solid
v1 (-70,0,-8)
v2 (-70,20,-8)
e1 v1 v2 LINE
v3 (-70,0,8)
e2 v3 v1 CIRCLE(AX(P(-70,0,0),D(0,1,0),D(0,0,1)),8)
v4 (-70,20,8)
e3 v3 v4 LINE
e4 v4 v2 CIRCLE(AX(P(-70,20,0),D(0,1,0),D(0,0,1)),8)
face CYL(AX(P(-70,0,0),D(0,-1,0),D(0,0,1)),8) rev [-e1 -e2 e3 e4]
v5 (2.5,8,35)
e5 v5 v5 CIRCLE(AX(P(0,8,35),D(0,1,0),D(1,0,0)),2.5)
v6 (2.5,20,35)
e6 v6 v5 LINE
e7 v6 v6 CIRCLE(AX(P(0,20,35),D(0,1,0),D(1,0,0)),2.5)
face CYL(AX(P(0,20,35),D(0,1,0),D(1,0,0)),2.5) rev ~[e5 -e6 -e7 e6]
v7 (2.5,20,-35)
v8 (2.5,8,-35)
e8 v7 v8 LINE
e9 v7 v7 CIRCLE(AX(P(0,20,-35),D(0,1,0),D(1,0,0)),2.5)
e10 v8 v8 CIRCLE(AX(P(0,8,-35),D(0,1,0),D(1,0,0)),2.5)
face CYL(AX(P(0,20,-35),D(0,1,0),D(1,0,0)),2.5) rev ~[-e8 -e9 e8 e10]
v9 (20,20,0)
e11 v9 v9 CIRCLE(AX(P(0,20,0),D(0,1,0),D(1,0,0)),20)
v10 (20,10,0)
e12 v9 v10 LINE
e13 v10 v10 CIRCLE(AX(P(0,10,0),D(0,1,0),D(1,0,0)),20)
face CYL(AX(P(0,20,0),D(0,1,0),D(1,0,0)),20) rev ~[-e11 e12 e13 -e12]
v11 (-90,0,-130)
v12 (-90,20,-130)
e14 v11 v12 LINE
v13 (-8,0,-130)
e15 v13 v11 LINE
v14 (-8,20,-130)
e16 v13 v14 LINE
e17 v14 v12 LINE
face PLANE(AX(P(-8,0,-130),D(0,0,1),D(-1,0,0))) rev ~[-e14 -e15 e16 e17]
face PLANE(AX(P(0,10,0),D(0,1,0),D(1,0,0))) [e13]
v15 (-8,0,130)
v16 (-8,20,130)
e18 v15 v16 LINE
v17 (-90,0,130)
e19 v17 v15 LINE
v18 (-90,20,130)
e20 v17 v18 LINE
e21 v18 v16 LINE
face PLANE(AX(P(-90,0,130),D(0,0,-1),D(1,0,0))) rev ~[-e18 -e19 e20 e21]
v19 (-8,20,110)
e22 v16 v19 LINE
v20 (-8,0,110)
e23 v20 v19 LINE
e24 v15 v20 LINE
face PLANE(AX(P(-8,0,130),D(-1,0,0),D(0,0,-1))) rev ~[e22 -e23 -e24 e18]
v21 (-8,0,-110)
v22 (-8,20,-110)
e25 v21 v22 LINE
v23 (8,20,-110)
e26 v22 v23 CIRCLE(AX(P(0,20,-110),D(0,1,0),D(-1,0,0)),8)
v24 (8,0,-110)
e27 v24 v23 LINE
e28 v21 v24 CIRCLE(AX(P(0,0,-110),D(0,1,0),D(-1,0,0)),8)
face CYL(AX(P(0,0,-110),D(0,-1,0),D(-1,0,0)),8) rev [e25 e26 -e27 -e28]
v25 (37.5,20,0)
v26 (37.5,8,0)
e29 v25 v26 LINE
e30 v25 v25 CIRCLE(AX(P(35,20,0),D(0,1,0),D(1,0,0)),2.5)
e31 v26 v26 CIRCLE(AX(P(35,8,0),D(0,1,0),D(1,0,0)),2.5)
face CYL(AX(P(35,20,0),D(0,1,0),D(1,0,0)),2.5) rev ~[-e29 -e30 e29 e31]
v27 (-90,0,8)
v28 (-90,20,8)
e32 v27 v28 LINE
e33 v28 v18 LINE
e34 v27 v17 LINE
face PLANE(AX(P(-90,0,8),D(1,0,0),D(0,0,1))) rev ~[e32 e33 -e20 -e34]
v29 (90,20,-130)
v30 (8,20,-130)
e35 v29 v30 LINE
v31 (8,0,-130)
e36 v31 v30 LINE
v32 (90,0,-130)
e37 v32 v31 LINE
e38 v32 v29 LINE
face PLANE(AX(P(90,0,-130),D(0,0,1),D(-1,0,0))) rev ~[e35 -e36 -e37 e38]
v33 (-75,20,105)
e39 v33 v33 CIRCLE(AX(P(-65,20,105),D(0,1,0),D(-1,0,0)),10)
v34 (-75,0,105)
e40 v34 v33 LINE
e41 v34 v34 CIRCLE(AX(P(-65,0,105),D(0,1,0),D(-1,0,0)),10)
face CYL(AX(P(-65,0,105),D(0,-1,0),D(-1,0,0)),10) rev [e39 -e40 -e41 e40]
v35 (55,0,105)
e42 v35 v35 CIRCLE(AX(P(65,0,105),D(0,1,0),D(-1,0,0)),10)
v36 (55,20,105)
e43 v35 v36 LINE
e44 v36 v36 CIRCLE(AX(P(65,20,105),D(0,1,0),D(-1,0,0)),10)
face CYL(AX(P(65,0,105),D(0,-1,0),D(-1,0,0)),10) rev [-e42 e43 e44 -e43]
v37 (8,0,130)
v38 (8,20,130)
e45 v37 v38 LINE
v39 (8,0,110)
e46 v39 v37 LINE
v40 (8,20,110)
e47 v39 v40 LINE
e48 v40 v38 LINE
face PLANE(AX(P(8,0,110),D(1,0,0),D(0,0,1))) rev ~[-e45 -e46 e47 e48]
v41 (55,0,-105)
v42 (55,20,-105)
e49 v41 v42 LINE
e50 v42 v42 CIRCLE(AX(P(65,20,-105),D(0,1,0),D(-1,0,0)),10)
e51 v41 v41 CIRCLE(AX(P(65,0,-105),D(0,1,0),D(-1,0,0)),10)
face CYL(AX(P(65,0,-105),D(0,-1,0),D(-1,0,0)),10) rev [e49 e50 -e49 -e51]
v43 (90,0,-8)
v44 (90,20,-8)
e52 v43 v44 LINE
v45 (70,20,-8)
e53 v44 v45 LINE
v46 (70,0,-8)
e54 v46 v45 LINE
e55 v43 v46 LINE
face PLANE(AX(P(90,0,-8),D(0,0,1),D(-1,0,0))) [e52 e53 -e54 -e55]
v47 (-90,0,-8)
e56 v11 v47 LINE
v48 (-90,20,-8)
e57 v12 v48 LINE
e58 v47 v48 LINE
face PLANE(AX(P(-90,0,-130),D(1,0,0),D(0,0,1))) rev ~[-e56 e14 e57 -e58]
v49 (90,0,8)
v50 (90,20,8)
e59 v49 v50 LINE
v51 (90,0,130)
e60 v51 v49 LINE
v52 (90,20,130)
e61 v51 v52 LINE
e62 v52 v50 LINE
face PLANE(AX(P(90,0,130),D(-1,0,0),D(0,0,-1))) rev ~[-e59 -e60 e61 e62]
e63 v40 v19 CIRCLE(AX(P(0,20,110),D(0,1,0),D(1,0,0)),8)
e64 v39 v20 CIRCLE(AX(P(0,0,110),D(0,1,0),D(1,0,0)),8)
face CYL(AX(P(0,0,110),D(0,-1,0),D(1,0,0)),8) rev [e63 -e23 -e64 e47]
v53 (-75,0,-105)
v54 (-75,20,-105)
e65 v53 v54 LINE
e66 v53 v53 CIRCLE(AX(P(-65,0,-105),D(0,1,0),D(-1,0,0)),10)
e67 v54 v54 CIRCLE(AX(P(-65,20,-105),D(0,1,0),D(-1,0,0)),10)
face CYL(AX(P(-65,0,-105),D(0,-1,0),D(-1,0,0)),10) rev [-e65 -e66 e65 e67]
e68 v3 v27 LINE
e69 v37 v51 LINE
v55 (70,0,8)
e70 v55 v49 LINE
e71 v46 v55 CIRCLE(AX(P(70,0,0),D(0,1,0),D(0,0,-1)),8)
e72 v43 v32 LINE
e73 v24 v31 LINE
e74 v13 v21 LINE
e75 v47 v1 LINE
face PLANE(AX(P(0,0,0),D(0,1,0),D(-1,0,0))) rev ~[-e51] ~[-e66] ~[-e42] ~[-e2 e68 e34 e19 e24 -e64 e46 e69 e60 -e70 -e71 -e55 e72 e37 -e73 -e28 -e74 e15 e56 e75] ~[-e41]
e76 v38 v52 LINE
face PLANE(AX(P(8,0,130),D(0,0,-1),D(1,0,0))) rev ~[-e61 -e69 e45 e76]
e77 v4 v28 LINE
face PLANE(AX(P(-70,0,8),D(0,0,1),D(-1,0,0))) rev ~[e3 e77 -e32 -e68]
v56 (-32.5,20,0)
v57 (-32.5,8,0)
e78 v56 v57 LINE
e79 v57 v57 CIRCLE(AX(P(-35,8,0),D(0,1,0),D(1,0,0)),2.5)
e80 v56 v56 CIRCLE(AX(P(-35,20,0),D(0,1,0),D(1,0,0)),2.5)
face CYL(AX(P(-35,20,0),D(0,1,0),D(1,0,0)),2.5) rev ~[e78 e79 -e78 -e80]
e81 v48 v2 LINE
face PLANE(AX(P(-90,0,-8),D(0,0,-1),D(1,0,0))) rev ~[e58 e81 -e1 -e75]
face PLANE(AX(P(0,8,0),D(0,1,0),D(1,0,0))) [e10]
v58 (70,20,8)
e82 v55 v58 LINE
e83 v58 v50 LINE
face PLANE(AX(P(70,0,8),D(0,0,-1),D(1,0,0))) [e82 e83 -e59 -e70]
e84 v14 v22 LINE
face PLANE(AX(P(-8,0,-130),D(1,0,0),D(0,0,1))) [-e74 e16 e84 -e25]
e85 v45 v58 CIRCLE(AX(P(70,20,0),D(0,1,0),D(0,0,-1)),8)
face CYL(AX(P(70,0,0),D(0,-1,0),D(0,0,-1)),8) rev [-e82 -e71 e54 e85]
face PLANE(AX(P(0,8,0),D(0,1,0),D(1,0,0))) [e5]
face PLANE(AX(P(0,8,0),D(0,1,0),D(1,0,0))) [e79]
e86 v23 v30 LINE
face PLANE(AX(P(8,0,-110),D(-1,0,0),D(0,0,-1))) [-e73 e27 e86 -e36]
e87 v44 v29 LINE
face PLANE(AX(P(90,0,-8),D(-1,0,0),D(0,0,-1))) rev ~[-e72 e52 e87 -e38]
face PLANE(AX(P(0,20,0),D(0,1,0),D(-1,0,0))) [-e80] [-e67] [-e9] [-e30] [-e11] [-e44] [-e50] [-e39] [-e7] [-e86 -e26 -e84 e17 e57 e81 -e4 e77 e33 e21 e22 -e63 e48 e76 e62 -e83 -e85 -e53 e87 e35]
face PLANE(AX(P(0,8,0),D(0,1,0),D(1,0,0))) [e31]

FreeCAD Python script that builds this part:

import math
import FreeCAD as App
import Part
import Sketcher

V = App.Vector

doc = App.newDocument("Part")
body = doc.addObject("PartDesign::Body", "Body")

# Sketch on XZ plane
sketch1 = body.newObject("Sketcher::SketchObject", "Sketch")
sketch1.AttachmentSupport = (doc.getObject("XZ_Plane"), [""])
sketch1.MapMode = "FlatFace"
sketch1.addGeometry([
    Part.LineSegment(V(-90, -130, 0), V(-90, -8, 0)),  # 0
    Part.LineSegment(V(-90, -8, 0), V(-70, -8, 0)),  # 1
    Part.ArcOfCircle(Part.Circle(V(-70, 0, 0), V(0, 0, 1), 8), math.radians(-90), math.radians(90)),  # 2
    Part.LineSegment(V(-70, 8, 0), V(-90, 8, 0)),  # 3
    Part.LineSegment(V(-90, 8, 0), V(-90, 130, 0)),  # 4
    Part.LineSegment(V(-90, 130, 0), V(-8, 130, 0)),  # 5
    Part.LineSegment(V(-8, 130, 0), V(-8, 110, 0)),  # 6
    Part.ArcOfCircle(Part.Circle(V(0, 110, 0), V(0, 0, 1), 8), math.radians(180), math.radians(360)),  # 7
    Part.LineSegment(V(8, 110, 0), V(8, 130, 0)),  # 8
    Part.LineSegment(V(8, 130, 0), V(90, 130, 0)),  # 9
    Part.LineSegment(V(90, 130, 0), V(90, 8, 0)),  # 10
    Part.LineSegment(V(90, 8, 0), V(70, 8, 0)),  # 11
    Part.ArcOfCircle(Part.Circle(V(70, 0, 0), V(0, 0, 1), 8), math.radians(90), math.radians(270)),  # 12
    Part.LineSegment(V(70, -8, 0), V(90, -8, 0)),  # 13
    Part.LineSegment(V(90, -8, 0), V(90, -130, 0)),  # 14
    Part.LineSegment(V(90, -130, 0), V(8, -130, 0)),  # 15
    Part.LineSegment(V(8, -130, 0), V(8, -110, 0)),  # 16
    Part.ArcOfCircle(Part.Circle(V(0, -110, 0), V(0, 0, 1), 8), math.radians(0), math.radians(180)),  # 17
    Part.LineSegment(V(-8, -110, 0), V(-8, -130, 0)),  # 18
    Part.LineSegment(V(-8, -130, 0), V(-90, -130, 0)),  # 19
    Part.Circle(V(65, -105, 0), V(0, 0, 1), 10),  # 20
    Part.Circle(V(-65, -105, 0), V(0, 0, 1), 10),  # 21
    Part.Circle(V(65, 105, 0), V(0, 0, 1), 10),  # 22
    Part.Circle(V(-65, 105, 0), V(0, 0, 1), 10),  # 23
], False)
sketch1.addConstraint([
    Sketcher.Constraint("Coincident", 0, 2, 1, 1),
    Sketcher.Constraint("Tangent", 1, 2, 2, 1),
    Sketcher.Constraint("Tangent", 2, 2, 3, 1),
    Sketcher.Constraint("Coincident", 3, 2, 4, 1),
    Sketcher.Constraint("Coincident", 4, 2, 5, 1),
    Sketcher.Constraint("Coincident", 5, 2, 6, 1),
    Sketcher.Constraint("Tangent", 6, 2, 7, 1),
    Sketcher.Constraint("Tangent", 7, 2, 8, 1),
    Sketcher.Constraint("Coincident", 8, 2, 9, 1),
    Sketcher.Constraint("Coincident", 9, 2, 10, 1),
    Sketcher.Constraint("Coincident", 10, 2, 11, 1),
    Sketcher.Constraint("Tangent", 11, 2, 12, 1),
    Sketcher.Constraint("Tangent", 12, 2, 13, 1),
    Sketcher.Constraint("Coincident", 13, 2, 14, 1),
    Sketcher.Constraint("Coincident", 14, 2, 15, 1),
    Sketcher.Constraint("Coincident", 15, 2, 16, 1),
    Sketcher.Constraint("Tangent", 16, 2, 17, 1),
    Sketcher.Constraint("Tangent", 17, 2, 18, 1),
    Sketcher.Constraint("Coincident", 18, 2, 19, 1),
    Sketcher.Constraint("Coincident", 19, 2, 0, 1),
    Sketcher.Constraint("Vertical", 0),
    Sketcher.Constraint("Horizontal", 1),
    Sketcher.Constraint("Horizontal", 3),
    Sketcher.Constraint("Vertical", 4),
    Sketcher.Constraint("Horizontal", 5),
    Sketcher.Constraint("Vertical", 6),
    Sketcher.Constraint("Vertical", 8),
    Sketcher.Constraint("Horizontal", 9),
    Sketcher.Constraint("Vertical", 10),
    Sketcher.Constraint("Horizontal", 11),
    Sketcher.Constraint("Horizontal", 13),
    Sketcher.Constraint("Vertical", 14),
    Sketcher.Constraint("Horizontal", 15),
    Sketcher.Constraint("Vertical", 16),
    Sketcher.Constraint("Vertical", 18),
    Sketcher.Constraint("Horizontal", 19),
    Sketcher.Constraint("Equal", 2, 7),
    Sketcher.Constraint("Equal", 7, 12),
    Sketcher.Constraint("Equal", 12, 17),
    Sketcher.Constraint("Equal", 20, 21),
    Sketcher.Constraint("Equal", 21, 22),
    Sketcher.Constraint("Equal", 22, 23),
    Sketcher.Constraint("Symmetric", 2, 3, 12, 3, -1, 1),
    Sketcher.Constraint("Symmetric", 7, 3, 17, 3, -1, 1),
    Sketcher.Constraint("Symmetric", 21, 3, 22, 3, -1, 1),
    Sketcher.Constraint("Symmetric", 20, 3, 23, 3, -1, 1),
    Sketcher.Constraint("Symmetric", 4, 2, 14, 2, -1, 1),
    Sketcher.Constraint("Symmetric", 9, 2, 19, 2, -1, 1),
    Sketcher.Constraint("Symmetric", 20, 3, 21, 3, -2),
    Sketcher.Constraint("Symmetric", 5, 2, 8, 2, -2),
    Sketcher.Constraint("Symmetric", 3, 2, 10, 2, -2),
    Sketcher.Constraint("Equal", 13, 6),
    Sketcher.Constraint("Diameter", 20, 20.0),
    Sketcher.Constraint("Radius", 2, 8.0),
    Sketcher.Constraint("DistanceX", 1, 1, 1, 2, 20.0),
    Sketcher.Constraint("DistanceX", -1, 1, 20, 3, 65.0),
    Sketcher.Constraint("DistanceX", 5, 1, 5, 2, 82.0),
    Sketcher.Constraint("DistanceY", 0, 1, 0, 2, 122.0),
    Sketcher.Constraint("DistanceY", 20, 3, -1, 1, 105.0),
])
pad1 = body.newObject("PartDesign::Pad", "Pad")
pad1.Profile = sketch1
pad1.Length = 20
pad1.Reversed = True

# Sketch on XZ plane
sketch2 = body.newObject("Sketcher::SketchObject", "Sketch001")
sketch2.AttachmentSupport = (doc.getObject("XZ_Plane"), [""])
sketch2.MapMode = "FlatFace"
sketch2.AttachmentOffset = App.Placement(V(0, 0, -20), App.Rotation())
sketch2.addGeometry([
    Part.Circle(V(0, -35, 0), V(0, 0, 1), 2.5),
    Part.Circle(V(-35, 0, 0), V(0, 0, 1), 2.5),
    Part.Circle(V(0, 35, 0), V(0, 0, 1), 2.5),
    Part.Circle(V(35, 0, 0), V(0, 0, 1), 2.5),
], False)
sketch2.addConstraint([
    Sketcher.Constraint("Equal", 0, 1),
    Sketcher.Constraint("Equal", 1, 2),
    Sketcher.Constraint("Equal", 2, 3),
    Sketcher.Constraint("Symmetric", 0, 3, 2, 3, -1, 1),
    Sketcher.Constraint("Symmetric", 1, 3, 3, 3, -1, 1),
    Sketcher.Constraint("PointOnObject", 0, 3, -2),
    Sketcher.Constraint("PointOnObject", 1, 3, -1),
    Sketcher.Constraint("Diameter", 0, 5.0),
    Sketcher.Constraint("DistanceY", 0, 3, -1, 1, 35.0),
    Sketcher.Constraint("DistanceX", 1, 3, -1, 1, 35.0),
])
pocket1 = body.newObject("PartDesign::Pocket", "Pocket")
pocket1.Profile = sketch2
pocket1.Length = 12
pocket1.Reversed = True

# Sketch on XZ plane
sketch3 = body.newObject("Sketcher::SketchObject", "Sketch002")
sketch3.AttachmentSupport = (doc.getObject("XZ_Plane"), [""])
sketch3.MapMode = "FlatFace"
sketch3.AttachmentOffset = App.Placement(V(0, 0, -20), App.Rotation())
sketch3.addGeometry(Part.Circle(V(0, 0, 0), V(0, 0, 1), 20), False)
sketch3.addConstraint([
    Sketcher.Constraint("Coincident", 0, 3, -1, 1),
    Sketcher.Constraint("Diameter", 0, 40.0),
])
pocket2 = body.newObject("PartDesign::Pocket", "Pocket001")
pocket2.Profile = sketch3
pocket2.Length = 10
pocket2.Reversed = True

doc.recompute()
